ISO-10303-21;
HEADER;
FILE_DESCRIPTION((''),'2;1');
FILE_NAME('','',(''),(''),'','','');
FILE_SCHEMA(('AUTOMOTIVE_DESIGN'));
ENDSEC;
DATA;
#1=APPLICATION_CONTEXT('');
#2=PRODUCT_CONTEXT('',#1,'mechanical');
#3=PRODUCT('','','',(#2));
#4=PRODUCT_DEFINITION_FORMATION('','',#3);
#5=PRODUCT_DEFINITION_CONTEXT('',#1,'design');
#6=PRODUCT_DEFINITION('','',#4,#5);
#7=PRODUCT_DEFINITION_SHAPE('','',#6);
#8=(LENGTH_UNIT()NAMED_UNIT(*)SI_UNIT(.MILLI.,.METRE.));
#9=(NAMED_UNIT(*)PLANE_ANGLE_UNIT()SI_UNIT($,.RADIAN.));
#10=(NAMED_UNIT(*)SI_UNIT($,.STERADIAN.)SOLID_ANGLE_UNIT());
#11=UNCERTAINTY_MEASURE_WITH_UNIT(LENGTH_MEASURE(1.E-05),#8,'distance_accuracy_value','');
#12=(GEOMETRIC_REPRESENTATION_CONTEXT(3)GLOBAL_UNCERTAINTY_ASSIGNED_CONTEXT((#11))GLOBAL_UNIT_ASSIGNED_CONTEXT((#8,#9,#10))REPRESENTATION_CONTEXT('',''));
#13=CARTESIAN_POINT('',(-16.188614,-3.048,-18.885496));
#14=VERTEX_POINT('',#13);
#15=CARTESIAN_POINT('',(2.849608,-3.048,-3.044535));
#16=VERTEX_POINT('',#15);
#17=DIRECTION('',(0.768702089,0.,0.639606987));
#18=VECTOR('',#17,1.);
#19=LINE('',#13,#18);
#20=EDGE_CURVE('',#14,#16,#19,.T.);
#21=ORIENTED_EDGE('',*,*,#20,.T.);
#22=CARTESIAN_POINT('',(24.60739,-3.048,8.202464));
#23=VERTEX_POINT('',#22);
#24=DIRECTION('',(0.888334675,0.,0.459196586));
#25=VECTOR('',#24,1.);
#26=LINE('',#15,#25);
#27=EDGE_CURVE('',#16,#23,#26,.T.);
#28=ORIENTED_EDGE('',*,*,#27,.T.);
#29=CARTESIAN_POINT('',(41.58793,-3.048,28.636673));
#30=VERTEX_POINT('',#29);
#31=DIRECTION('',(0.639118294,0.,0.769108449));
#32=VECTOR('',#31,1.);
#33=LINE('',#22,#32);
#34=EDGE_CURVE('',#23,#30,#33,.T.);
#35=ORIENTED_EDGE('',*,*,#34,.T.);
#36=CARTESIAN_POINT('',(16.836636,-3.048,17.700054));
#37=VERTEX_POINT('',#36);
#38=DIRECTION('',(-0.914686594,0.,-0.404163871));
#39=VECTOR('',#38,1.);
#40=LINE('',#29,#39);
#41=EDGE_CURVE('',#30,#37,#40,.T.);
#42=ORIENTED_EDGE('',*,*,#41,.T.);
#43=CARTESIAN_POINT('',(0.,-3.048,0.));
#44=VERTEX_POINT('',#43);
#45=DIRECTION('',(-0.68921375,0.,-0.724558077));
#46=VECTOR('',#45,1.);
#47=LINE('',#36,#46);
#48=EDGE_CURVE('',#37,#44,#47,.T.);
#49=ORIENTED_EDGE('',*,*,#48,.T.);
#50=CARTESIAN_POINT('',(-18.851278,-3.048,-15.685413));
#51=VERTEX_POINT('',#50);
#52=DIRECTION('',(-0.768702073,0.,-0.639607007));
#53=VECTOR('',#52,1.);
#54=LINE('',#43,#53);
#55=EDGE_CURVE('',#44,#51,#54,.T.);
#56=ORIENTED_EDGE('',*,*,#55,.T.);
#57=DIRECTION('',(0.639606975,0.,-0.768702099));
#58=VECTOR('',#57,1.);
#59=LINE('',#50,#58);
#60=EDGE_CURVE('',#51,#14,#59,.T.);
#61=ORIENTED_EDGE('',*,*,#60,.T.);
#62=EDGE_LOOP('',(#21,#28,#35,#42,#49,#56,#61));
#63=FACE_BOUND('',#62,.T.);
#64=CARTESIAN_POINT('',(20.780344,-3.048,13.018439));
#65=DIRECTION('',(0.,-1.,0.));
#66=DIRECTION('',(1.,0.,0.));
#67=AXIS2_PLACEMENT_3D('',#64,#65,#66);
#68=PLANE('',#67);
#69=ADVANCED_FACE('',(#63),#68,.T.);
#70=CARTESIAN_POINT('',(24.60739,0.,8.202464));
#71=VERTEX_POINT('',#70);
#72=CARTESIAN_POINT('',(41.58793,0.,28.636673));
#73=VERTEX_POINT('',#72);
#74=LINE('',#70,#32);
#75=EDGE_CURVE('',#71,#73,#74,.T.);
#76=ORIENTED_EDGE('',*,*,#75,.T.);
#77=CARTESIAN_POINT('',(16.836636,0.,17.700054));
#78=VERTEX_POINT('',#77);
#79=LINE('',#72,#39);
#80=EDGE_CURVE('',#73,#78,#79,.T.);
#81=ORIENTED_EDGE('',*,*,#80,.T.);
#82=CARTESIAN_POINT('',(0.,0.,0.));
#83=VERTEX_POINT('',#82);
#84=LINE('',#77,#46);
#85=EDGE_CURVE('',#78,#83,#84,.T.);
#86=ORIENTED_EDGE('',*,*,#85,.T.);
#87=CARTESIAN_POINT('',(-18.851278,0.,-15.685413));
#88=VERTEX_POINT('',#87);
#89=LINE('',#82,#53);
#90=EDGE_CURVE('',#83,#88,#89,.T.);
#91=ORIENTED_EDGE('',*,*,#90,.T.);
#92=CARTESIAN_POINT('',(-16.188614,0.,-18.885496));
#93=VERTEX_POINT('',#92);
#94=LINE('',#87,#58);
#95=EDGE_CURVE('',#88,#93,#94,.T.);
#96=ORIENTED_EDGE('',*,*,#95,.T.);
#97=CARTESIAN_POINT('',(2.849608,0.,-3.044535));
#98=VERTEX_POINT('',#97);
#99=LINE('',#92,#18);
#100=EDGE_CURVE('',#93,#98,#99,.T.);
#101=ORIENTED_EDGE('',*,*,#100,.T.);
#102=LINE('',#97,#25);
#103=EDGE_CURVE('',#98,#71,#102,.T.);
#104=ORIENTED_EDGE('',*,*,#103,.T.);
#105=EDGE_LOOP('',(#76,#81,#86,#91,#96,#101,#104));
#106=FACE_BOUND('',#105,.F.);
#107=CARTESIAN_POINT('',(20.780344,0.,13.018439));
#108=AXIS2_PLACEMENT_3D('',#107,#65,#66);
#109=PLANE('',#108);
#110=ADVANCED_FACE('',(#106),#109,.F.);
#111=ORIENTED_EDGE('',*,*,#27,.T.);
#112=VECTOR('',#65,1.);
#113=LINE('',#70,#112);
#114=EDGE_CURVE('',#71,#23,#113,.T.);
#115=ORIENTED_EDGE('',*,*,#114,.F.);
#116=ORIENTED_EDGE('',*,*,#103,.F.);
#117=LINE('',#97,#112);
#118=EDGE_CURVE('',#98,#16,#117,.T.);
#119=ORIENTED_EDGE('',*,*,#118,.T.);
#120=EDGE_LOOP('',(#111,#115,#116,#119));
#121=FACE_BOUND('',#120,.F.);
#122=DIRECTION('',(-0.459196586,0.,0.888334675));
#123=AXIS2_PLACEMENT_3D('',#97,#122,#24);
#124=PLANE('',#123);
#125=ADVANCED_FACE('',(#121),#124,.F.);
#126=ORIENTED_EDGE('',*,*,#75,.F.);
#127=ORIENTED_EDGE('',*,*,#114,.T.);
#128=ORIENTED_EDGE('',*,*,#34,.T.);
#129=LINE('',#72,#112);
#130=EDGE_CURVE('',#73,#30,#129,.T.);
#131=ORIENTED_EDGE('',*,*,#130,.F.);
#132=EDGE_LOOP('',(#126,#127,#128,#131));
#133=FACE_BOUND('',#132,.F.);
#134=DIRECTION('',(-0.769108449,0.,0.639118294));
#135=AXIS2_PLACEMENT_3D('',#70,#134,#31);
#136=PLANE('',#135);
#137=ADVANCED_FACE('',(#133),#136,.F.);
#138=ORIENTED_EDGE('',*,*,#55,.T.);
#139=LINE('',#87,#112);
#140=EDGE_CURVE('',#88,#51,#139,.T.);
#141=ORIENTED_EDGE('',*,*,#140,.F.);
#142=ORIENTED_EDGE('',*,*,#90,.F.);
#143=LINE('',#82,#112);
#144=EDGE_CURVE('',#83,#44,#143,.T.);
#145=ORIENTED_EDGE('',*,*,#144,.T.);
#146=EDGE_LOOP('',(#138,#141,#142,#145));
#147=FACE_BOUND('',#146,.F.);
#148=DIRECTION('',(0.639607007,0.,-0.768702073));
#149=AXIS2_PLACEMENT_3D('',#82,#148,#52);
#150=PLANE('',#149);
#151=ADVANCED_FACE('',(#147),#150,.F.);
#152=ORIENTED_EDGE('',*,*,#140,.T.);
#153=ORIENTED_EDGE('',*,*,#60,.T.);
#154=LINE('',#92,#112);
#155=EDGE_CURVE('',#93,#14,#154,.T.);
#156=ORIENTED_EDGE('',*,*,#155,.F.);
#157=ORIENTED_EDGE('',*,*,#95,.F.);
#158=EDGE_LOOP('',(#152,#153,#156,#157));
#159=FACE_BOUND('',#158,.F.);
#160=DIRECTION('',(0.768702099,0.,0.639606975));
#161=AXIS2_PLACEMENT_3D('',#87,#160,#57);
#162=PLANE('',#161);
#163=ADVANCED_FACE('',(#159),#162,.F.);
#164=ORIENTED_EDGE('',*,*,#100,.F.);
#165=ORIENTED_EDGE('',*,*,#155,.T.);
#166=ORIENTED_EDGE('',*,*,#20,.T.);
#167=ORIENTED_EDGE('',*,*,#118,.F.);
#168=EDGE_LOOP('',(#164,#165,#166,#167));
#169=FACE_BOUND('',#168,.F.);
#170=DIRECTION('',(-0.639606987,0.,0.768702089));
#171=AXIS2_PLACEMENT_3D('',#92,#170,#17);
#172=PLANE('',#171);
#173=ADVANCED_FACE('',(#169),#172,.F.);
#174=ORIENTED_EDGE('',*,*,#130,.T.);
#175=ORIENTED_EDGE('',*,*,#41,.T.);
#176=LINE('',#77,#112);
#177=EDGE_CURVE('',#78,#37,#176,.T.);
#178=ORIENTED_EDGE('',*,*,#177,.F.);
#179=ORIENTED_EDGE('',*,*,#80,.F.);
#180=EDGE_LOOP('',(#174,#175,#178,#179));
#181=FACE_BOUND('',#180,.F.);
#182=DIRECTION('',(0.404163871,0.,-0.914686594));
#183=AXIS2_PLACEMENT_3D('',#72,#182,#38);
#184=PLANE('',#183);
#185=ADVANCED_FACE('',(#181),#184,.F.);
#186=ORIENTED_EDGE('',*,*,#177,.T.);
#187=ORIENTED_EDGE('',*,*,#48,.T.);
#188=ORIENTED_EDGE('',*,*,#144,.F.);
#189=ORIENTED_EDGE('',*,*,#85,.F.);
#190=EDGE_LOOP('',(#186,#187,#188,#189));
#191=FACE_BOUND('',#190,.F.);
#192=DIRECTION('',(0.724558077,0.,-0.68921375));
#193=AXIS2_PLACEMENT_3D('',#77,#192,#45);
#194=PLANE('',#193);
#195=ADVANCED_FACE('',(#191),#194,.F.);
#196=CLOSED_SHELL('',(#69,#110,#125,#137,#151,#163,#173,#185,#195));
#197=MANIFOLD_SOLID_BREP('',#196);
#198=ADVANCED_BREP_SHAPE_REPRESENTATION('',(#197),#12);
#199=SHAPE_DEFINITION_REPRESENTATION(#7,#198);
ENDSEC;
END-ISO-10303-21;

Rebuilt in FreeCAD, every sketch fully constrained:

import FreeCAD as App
import Part
import Sketcher
from FreeCAD import Vector
Q = App.Units.Quantity

doc = App.newDocument("Part")
body = doc.addObject("PartDesign::Body", "Body")

sketch1 = body.newObject("Sketcher::SketchObject", "Sketch")
sketch1.AttachmentSupport = (doc.getObject("XZ_Plane"), [""])
sketch1.MapMode = "FlatFace"
sketch1.addGeometry([
    Part.LineSegment(Vector(16.8, 17.7, 0), Vector(0, 0, 0)),
    Part.LineSegment(Vector(0, 0, 0), Vector(-18.9, -15.7, 0)),
    Part.LineSegment(Vector(-18.9, -15.7, 0), Vector(-16.2, -18.9, 0)),
    Part.LineSegment(Vector(-16.2, -18.9, 0), Vector(2.8, -3, 0)),
    Part.LineSegment(Vector(2.8, -3, 0), Vector(24.6, 8.2, 0)),
    Part.LineSegment(Vector(24.6, 8.2, 0), Vector(41.6, 28.6, 0)),
    Part.LineSegment(Vector(41.6, 28.6, 0), Vector(16.8, 17.7, 0)),
], False)
sketch1.addConstraint([
    Sketcher.Constraint("Coincident", 0, 2, 1, 1),
    Sketcher.Constraint("Coincident", 1, 2, 2, 1),
    Sketcher.Constraint("Coincident", 2, 2, 3, 1),
    Sketcher.Constraint("Coincident", 3, 2, 4, 1),
    Sketcher.Constraint("Coincident", 4, 2, 5, 1),
    Sketcher.Constraint("Coincident", 5, 2, 6, 1),
    Sketcher.Constraint("Coincident", 6, 2, 0, 1),
    Sketcher.Constraint("Coincident", 0, 2, -1, 1),
    Sketcher.Constraint("Perpendicular", 1, 2),
    Sketcher.Constraint("Perpendicular", 2, 3),
    Sketcher.Constraint("DistanceY", 3, 2, 4, 2, 11.246999),
    Sketcher.Constraint("Distance", 0, 24.428758),
    Sketcher.Constraint("Distance", 2, 4.162969),
    Sketcher.Constraint("Distance", 3, 24.76671),
    Sketcher.Constraint("DistanceX", 1, 2, -1, 1, 18.851278),
    Sketcher.Constraint("DistanceX", -1, 1, 4, 2, 24.60739),
    Sketcher.Constraint("DistanceX", -1, 1, 5, 2, 41.58793),
    Sketcher.Constraint("DistanceY", 2, 2, 3, 2, 15.840961),
    Sketcher.Constraint("DistanceY", 4, 2, 5, 2, 20.434209),
    Sketcher.Constraint("DistanceY", 4, 2, 6, 2, 9.49759),
])
pad1 = body.newObject("PartDesign::Pad", "Pad")
pad1.Profile = sketch1
pad1.Length = Q("0.12 in")

doc.recompute()
